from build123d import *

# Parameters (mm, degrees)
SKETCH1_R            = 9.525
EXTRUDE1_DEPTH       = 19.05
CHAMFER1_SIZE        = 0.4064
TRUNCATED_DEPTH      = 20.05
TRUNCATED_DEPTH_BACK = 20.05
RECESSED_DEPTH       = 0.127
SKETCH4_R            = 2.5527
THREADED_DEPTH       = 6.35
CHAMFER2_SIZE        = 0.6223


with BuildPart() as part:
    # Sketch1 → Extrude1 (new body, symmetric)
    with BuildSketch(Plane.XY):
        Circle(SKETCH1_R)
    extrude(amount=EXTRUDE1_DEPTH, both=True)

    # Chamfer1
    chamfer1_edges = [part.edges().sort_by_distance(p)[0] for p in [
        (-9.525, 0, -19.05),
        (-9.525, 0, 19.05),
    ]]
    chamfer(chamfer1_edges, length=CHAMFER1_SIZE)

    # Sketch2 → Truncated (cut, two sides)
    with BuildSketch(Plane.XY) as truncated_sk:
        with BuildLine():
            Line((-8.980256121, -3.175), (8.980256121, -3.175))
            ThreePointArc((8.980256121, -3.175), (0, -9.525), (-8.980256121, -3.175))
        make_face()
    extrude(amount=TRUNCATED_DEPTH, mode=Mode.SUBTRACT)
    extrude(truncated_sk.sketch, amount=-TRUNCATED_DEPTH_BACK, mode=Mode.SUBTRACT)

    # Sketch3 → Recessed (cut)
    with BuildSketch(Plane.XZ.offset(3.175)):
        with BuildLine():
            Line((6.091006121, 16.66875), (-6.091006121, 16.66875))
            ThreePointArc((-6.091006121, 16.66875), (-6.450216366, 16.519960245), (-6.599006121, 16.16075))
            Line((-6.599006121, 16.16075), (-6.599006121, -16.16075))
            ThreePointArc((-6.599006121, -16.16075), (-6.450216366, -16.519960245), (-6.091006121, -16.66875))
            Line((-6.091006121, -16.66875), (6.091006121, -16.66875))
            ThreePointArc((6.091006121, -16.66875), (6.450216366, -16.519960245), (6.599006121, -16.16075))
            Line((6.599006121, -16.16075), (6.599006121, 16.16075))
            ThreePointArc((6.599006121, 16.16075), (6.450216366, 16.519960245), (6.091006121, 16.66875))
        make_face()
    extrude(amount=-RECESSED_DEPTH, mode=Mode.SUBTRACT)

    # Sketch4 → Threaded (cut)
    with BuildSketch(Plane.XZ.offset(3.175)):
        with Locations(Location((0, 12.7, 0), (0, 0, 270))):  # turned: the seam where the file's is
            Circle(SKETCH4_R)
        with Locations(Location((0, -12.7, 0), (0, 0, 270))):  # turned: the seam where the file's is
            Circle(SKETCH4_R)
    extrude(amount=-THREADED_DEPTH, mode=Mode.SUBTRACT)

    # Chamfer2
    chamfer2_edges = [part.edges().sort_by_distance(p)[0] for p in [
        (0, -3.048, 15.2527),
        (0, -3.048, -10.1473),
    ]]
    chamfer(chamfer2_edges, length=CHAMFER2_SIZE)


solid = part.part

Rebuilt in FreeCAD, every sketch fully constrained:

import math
import FreeCAD as App
import Part
import Sketcher
Q = App.Units.Quantity


def edges_at(feature, points):
    """Names of the edges that pass closest to the given points."""
    edges = feature.Shape.Edges
    near = lambda p: min(range(len(edges)), key=lambda i: edges[i].distToShape(Part.Vertex(*p))[0])
    return sorted({f"Edge{near(p) + 1}" for p in points})

doc = App.newDocument("Part")
body = doc.addObject("PartDesign::Body", "Body")

# Sketch on XY plane
sketch1 = body.newObject("Sketcher::SketchObject", "Sketch")
sketch1.AttachmentSupport = (doc.getObject("XY_Plane"), [""])
sketch1.MapMode = "FlatFace"
sketch1.addGeometry(Part.Circle(App.Vector(0, 0, 0), App.Vector(0, 0, 1), 10), False)
sketch1.addConstraint(Sketcher.Constraint("Coincident", 0, 3, -1, 1))
sketch1.addConstraint(Sketcher.Constraint("Diameter", 0, Q("0.75 in")))
pad1 = body.newObject("PartDesign::Pad", "Pad")
pad1.Profile = sketch1
pad1.Length = Q("1.5 in")
pad1.Midplane = True
doc.recompute()

chamfer = body.newObject("PartDesign::Chamfer", "Chamfer")
chamfer.Base = (pad1, edges_at(pad1, [(-9.525, 0, -19.05), (-9.525, 0, 19.05)]))
chamfer.Size = Q("0.016 in")

# Sketch on XY plane
sketch2 = body.newObject("Sketcher::SketchObject", "Sketch001")
sketch2.AttachmentSupport = (doc.getObject("XY_Plane"), [""])
sketch2.MapMode = "FlatFace"
sketch2.addGeometry(Part.LineSegment(App.Vector(9, -3, 0), App.Vector(-9, -3, 0)), False)
sketch2.addGeometry(Part.ArcOfCircle(Part.Circle(App.Vector(0, 0, 0), App.Vector(0, 0, 1), 10), math.radians(-161), math.radians(-19)), False)
sketch2.addConstraint(Sketcher.Constraint("Coincident", 0, 1, 1, 2))
sketch2.addConstraint(Sketcher.Constraint("Coincident", 1, 1, 0, 2))
sketch2.addConstraint(Sketcher.Constraint("Horizontal", 0))
sketch2.addConstraint(Sketcher.Constraint("Coincident", 1, 3, -1, 1))
sketch2.addConstraint(Sketcher.Constraint("Radius", 1, Q("0.375 in")))
sketch2.addConstraint(Sketcher.Constraint("DistanceY", 0, 1, -1, 1, Q("0.125 in")))
pocket1 = body.newObject("PartDesign::Pocket", "Pocket")
pocket1.Profile = sketch2
pocket1.Type = "ThroughAll"
pocket1.Midplane = True

# Sketch on XZ plane
sketch3 = body.newObject("Sketcher::SketchObject", "Sketch002")
sketch3.AttachmentSupport = (doc.getObject("XZ_Plane"), [""])
sketch3.MapMode = "FlatFace"
sketch3.AttachmentOffset = App.Placement(App.Vector(0, 0, 0.125 * 25.4), App.Rotation())
sketch3.addGeometry(Part.LineSegment(App.Vector(6.1, 16.7, 0), App.Vector(-6.1, 16.7, 0)), False)
sketch3.addGeometry(Part.ArcOfCircle(Part.Circle(App.Vector(-6.1, 16.2, 0), App.Vector(0, 0, 1), 0.5), math.radians(90), math.radians(180)), False)
sketch3.addGeometry(Part.LineSegment(App.Vector(-6.6, 16.2, 0), App.Vector(-6.6, -16.2, 0)), False)
sketch3.addGeometry(Part.ArcOfCircle(Part.Circle(App.Vector(-6.1, -16.2, 0), App.Vector(0, 0, 1), 0.5), math.radians(180), math.radians(270)), False)
sketch3.addGeometry(Part.LineSegment(App.Vector(-6.1, -16.7, 0), App.Vector(6.1, -16.7, 0)), False)
sketch3.addGeometry(Part.ArcOfCircle(Part.Circle(App.Vector(6.1, -16.2, 0), App.Vector(0, 0, 1), 0.5), math.radians(-90), math.radians(0)), False)
sketch3.addGeometry(Part.LineSegment(App.Vector(6.6, -16.2, 0), App.Vector(6.6, 16.2, 0)), False)
sketch3.addGeometry(Part.ArcOfCircle(Part.Circle(App.Vector(6.1, 16.2, 0), App.Vector(0, 0, 1), 0.5), math.radians(0), math.radians(90)), False)
sketch3.addConstraint(Sketcher.Constraint("Tangent", 0, 2, 1, 1))
sketch3.addConstraint(Sketcher.Constraint("Tangent", 1, 2, 2, 1))
sketch3.addConstraint(Sketcher.Constraint("Tangent", 2, 2, 3, 1))
sketch3.addConstraint(Sketcher.Constraint("Tangent", 3, 2, 4, 1))
sketch3.addConstraint(Sketcher.Constraint("Tangent", 4, 2, 5, 1))
sketch3.addConstraint(Sketcher.Constraint("Tangent", 5, 2, 6, 1))
sketch3.addConstraint(Sketcher.Constraint("Tangent", 6, 2, 7, 1))
sketch3.addConstraint(Sketcher.Constraint("Tangent", 7, 2, 0, 1))
sketch3.addConstraint(Sketcher.Constraint("Horizontal", 0))
sketch3.addConstraint(Sketcher.Constraint("Vertical", 2))
sketch3.addConstraint(Sketcher.Constraint("Horizontal", 4))
sketch3.addConstraint(Sketcher.Constraint("Vertical", 6))
sketch3.addConstraint(Sketcher.Constraint("Equal", 1, 3))
sketch3.addConstraint(Sketcher.Constraint("Equal", 3, 5))
sketch3.addConstraint(Sketcher.Constraint("Equal", 5, 7))
sketch3.addConstraint(Sketcher.Constraint("Symmetric", 1, 3, 5, 3, -1, 1))
sketch3.addConstraint(Sketcher.Constraint("Radius", 1, Q("0.02 in")))
sketch3.addConstraint(Sketcher.Constraint("DistanceY", 2, 2, 2, 1, Q("1.2725 in")))
sketch3.addConstraint(Sketcher.Constraint("DistanceX", 0, 2, 0, 1, Q("12.182012 mm")))
pocket2 = body.newObject("PartDesign::Pocket", "Pocket001")
pocket2.Profile = sketch3
pocket2.Length = Q("0.005 in")

# Sketch on XZ plane
sketch4 = body.newObject("Sketcher::SketchObject", "Sketch003")
sketch4.AttachmentSupport = (doc.getObject("XZ_Plane"), [""])
sketch4.MapMode = "FlatFace"
sketch4.AttachmentOffset = App.Placement(App.Vector(0, 0, 0.125 * 25.4), App.Rotation())
sketch4.addGeometry(Part.Circle(App.Vector(0, 12.7, 0), App.Vector(0, 0, 1), 2.6), False)
sketch4.addGeometry(Part.Circle(App.Vector(0, -12.7, 0), App.Vector(0, 0, 1), 2.6), False)
sketch4.addConstraint(Sketcher.Constraint("Equal", 0, 1))
sketch4.addConstraint(Sketcher.Constraint("Symmetric", 0, 3, 1, 3, -1, 1))
sketch4.addConstraint(Sketcher.Constraint("PointOnObject", 0, 3, -2))
sketch4.addConstraint(Sketcher.Constraint("Diameter", 0, Q("0.201 in")))
sketch4.addConstraint(Sketcher.Constraint("DistanceY", 1, 3, 0, 3, Q("1 in")))
pocket3 = body.newObject("PartDesign::Pocket", "Pocket002")
pocket3.Profile = sketch4
pocket3.Length = Q("0.25 in")
doc.recompute()

chamfer2 = body.newObject("PartDesign::Chamfer", "Chamfer001")
chamfer2.Base = (pocket3, edges_at(pocket3, [(0, -3.048, 15.253), (0, -3.048, -10.147)]))
chamfer2.Size = Q("0.0245 in")

doc.recompute()
